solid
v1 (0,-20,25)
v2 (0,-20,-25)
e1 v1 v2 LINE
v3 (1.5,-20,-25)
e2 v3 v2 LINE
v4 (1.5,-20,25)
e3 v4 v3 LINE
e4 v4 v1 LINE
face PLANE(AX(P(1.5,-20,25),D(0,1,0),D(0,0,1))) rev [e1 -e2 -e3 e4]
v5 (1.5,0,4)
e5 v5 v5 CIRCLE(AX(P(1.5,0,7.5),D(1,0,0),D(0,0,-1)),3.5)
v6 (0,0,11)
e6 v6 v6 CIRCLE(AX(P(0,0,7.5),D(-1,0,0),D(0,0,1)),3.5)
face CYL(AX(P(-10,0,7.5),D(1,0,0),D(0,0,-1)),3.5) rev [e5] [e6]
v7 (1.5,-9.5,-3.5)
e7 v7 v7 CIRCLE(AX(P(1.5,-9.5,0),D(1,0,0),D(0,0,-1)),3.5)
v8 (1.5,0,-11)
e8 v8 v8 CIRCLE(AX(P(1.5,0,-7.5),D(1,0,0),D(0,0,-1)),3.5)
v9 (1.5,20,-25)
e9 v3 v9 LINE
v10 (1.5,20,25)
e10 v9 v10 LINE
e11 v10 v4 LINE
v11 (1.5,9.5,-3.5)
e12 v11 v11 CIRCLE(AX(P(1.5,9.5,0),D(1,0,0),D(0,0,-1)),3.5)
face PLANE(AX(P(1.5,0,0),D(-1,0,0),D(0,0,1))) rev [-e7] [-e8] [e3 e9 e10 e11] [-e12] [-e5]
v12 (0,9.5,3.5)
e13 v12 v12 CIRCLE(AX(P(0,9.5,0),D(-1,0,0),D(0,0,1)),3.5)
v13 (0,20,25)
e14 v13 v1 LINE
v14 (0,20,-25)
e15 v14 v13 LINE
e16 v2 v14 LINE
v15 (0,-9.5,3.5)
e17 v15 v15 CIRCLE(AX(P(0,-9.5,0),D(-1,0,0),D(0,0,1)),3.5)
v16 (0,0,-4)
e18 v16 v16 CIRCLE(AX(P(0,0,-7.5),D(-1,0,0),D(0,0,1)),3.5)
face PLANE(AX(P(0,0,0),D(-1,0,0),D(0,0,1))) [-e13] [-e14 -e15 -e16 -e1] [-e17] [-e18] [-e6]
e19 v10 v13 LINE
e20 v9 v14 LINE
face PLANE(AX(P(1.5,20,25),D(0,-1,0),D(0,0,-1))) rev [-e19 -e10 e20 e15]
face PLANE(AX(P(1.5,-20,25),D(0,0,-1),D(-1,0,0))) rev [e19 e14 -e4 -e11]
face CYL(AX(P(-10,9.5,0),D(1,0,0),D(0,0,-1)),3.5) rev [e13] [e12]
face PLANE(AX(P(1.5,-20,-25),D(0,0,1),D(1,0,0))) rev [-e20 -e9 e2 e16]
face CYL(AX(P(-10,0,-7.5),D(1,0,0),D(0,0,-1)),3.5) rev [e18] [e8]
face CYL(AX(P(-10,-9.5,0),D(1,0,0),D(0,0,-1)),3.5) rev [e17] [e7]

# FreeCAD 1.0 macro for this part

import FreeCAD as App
import Part
import Sketcher
from FreeCAD import Vector
Q = App.Units.Quantity


def add_polygon(sketch, points):
    """Adds a closed chain of lines whose ends are joined by coincident constraints."""
    first, n = sketch.GeometryCount, len(points)
    for a, b in zip(points, points[1:] + points[:1]):
        sketch.addGeometry(Part.LineSegment(App.Vector(*a, 0), App.Vector(*b, 0)), False)
    for i in range(n):
        sketch.addConstraint(Sketcher.Constraint("Coincident", first + i, 2, first + (i + 1) % n, 1))

doc = App.newDocument("Part")
params = doc.addObject("Spreadsheet::Sheet", "Params")
for row, (alias, value) in enumerate([
    ("sketch1_width", "40 mm"),
    ("sketch1_height", "50 mm"),
    ("pad1_length", "1.5 mm"),
    ("sketch2_diameter", "7 mm"),
    ("pocket1_length", "11.5 mm"),
], start=1):
    params.set(f"A{row}", alias)
    params.set(f"B{row}", "=" + value)
    params.setAlias(f"B{row}", alias)

body = doc.addObject("PartDesign::Body", "Body")

# Sketch on YZ plane
sketch1 = doc.addObject("Sketcher::SketchObject", "Sketch")
body.addObject(sketch1)
sketch1.AttachmentSupport = (doc.YZ_Plane, [""])
sketch1.MapMode = "FlatFace"
add_polygon(sketch1, [(20, 25), (-20, 25), (-20, -25), (20, -25)])  # lines 0-3
sketch1.addConstraint(Sketcher.Constraint("Horizontal", 0))
sketch1.addConstraint(Sketcher.Constraint("Vertical", 1))
sketch1.addConstraint(Sketcher.Constraint("Horizontal", 2))
sketch1.addConstraint(Sketcher.Constraint("Vertical", 3))
sketch1.addConstraint(Sketcher.Constraint("Symmetric", 0, 2, 2, 2, -1, 1))
sketch1.addConstraint(Sketcher.Constraint("DistanceX", 0, 2, 0, 1, Q("40 mm")))
sketch1.addConstraint(Sketcher.Constraint("DistanceY", 1, 2, 1, 1, Q("50 mm")))
sketch1.setExpression("Constraints[9]", "Params.sketch1_width")
sketch1.setExpression("Constraints[10]", "Params.sketch1_height")
pad1 = doc.addObject("PartDesign::Pad", "Pad")
body.addObject(pad1)
pad1.Profile = sketch1
pad1.setExpression("Length", "Params.pad1_length")

# Sketch on YZ plane
sketch2 = doc.addObject("Sketcher::SketchObject", "Sketch001")
body.addObject(sketch2)
sketch2.AttachmentSupport = (doc.YZ_Plane, [""])
sketch2.MapMode = "FlatFace"
sketch2.AttachmentOffset = App.Placement(Vector(0, 0, 1.5), App.Rotation())
sketch2.addGeometry(Part.Circle(Vector(9.5, 0, 0), Vector(0, 0, 1), 3.5), False)
sketch2.addGeometry(Part.Circle(Vector(-9.5, 0, 0), Vector(0, 0, 1), 3.5), False)
sketch2.addGeometry(Part.Circle(Vector(0, -7.5, 0), Vector(0, 0, 1), 3.5), False)
sketch2.addGeometry(Part.Circle(Vector(0, 7.5, 0), Vector(0, 0, 1), 3.5), False)
sketch2.addConstraint(Sketcher.Constraint("Equal", 0, 1))
sketch2.addConstraint(Sketcher.Constraint("Equal", 1, 2))
sketch2.addConstraint(Sketcher.Constraint("Equal", 2, 3))
sketch2.addConstraint(Sketcher.Constraint("Symmetric", 0, 3, 1, 3, -1, 1))
sketch2.addConstraint(Sketcher.Constraint("Symmetric", 2, 3, 3, 3, -1, 1))
sketch2.addConstraint(Sketcher.Constraint("PointOnObject", 0, 3, -1))
sketch2.addConstraint(Sketcher.Constraint("PointOnObject", 2, 3, -2))
sketch2.addConstraint(Sketcher.Constraint("Diameter", 0, Q("7 mm")))
sketch2.addConstraint(Sketcher.Constraint("DistanceX", 1, 3, 0, 3, Q("19 mm")))
sketch2.addConstraint(Sketcher.Constraint("DistanceY", 2, 3, 3, 3, Q("15 mm")))
sketch2.setExpression("Constraints[7]", "Params.sketch2_diameter")
pocket1 = doc.addObject("PartDesign::Pocket", "Pocket")
body.addObject(pocket1)
pocket1.Profile = sketch2
pocket1.setExpression("Length", "Params.pocket1_length")

doc.recompute()
